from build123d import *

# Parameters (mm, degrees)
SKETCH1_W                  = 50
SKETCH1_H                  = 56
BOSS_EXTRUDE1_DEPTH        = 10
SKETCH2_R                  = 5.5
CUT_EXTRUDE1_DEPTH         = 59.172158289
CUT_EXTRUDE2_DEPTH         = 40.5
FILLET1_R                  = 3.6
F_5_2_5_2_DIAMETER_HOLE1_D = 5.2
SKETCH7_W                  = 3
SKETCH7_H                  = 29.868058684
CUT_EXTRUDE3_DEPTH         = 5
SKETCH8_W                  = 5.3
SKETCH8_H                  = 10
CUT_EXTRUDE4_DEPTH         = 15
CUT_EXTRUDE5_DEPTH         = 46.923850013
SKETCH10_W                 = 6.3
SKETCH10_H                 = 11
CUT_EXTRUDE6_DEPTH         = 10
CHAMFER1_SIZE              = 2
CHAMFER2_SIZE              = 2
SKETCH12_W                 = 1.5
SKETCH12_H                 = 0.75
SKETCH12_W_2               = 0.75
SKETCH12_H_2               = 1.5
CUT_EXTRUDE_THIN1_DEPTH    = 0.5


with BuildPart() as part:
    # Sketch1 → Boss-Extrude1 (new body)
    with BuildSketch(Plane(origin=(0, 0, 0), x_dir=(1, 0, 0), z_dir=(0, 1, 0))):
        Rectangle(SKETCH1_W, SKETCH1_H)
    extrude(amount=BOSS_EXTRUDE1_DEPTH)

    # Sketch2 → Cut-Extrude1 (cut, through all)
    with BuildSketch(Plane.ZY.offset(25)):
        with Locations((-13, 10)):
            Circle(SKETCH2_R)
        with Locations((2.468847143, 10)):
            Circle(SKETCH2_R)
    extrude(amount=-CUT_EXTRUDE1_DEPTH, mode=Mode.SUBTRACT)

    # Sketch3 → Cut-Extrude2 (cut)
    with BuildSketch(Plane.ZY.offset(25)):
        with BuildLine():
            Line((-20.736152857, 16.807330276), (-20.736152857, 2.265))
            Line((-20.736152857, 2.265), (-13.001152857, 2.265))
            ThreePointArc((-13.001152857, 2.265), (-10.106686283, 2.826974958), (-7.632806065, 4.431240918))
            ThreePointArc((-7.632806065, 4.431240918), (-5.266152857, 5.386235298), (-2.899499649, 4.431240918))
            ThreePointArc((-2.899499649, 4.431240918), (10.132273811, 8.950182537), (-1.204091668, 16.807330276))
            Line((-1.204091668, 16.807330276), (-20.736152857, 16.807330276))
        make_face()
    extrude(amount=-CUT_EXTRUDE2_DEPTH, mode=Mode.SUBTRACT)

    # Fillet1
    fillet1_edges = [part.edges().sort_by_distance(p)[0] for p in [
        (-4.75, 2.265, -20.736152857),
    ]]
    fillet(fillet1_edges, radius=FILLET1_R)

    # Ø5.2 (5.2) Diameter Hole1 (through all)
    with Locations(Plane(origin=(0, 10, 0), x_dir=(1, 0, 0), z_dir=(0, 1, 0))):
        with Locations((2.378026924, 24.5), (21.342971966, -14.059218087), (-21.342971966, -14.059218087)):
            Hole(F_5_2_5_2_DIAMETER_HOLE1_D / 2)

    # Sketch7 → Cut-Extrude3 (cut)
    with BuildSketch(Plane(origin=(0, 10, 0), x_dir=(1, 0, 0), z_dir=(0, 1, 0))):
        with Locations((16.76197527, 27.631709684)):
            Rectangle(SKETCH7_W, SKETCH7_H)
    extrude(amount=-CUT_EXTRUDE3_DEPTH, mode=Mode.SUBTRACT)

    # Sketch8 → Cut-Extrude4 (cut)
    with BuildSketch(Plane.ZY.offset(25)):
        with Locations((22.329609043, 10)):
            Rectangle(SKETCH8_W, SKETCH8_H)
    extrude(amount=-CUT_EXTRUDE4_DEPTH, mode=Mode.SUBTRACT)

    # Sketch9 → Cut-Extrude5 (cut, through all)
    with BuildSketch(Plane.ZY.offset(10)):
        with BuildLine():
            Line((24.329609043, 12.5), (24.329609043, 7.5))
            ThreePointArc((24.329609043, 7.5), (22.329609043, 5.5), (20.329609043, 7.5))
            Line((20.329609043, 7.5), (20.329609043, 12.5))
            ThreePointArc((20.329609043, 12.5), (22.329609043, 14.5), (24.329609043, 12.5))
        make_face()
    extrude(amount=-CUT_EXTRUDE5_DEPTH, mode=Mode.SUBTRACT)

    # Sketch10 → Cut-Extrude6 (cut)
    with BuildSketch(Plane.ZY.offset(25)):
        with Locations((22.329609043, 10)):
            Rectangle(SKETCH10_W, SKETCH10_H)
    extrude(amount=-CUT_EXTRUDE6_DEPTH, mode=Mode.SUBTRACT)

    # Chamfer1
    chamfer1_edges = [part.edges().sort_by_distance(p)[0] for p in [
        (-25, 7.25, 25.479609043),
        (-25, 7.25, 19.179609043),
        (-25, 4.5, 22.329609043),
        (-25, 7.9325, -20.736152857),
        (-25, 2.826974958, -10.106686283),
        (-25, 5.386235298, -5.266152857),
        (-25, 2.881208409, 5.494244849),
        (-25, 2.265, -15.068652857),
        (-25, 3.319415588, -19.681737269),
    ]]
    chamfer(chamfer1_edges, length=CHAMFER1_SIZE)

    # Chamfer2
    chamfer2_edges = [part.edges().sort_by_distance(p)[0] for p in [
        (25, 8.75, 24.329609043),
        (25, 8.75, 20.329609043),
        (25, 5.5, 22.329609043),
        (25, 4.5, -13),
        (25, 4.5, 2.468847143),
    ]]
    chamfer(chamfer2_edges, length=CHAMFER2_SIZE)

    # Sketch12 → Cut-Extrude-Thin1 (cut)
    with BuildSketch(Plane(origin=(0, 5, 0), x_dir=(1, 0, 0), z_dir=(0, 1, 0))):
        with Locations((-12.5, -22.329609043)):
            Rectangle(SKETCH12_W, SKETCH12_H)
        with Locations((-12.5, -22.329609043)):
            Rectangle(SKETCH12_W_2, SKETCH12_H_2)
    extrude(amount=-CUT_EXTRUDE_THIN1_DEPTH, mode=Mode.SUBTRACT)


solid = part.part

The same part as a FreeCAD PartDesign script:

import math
import FreeCAD as App
import Part
import Sketcher
from FreeCAD import Vector


def edges_at(feature, points):
    """Names of the edges that pass closest to the given points."""
    edges = feature.Shape.Edges
    near = lambda p: min(range(len(edges)), key=lambda i: edges[i].distToShape(Part.Vertex(*p))[0])
    return sorted({f"Edge{near(p) + 1}" for p in points})

doc = App.newDocument("Part")
body = doc.addObject("PartDesign::Body", "Body")

# Sketch on XZ plane
sketch1 = body.newObject("Sketcher::SketchObject", "Sketch")
sketch1.AttachmentSupport = (doc.getObject("XZ_Plane"), [""])
sketch1.MapMode = "FlatFace"
sketch1.addGeometry([
    Part.LineSegment(Vector(-25, -28, 0), Vector(-25, 28, 0)),
    Part.LineSegment(Vector(-25, 28, 0), Vector(25, 28, 0)),
    Part.LineSegment(Vector(25, 28, 0), Vector(25, -28, 0)),
    Part.LineSegment(Vector(25, -28, 0), Vector(-25, -28, 0)),
], False)
sketch1.addConstraint([
    Sketcher.Constraint("Coincident", 0, 2, 1, 1),
    Sketcher.Constraint("Coincident", 1, 2, 2, 1),
    Sketcher.Constraint("Coincident", 2, 2, 3, 1),
    Sketcher.Constraint("Coincident", 3, 2, 0, 1),
    Sketcher.Constraint("Vertical", 0),
    Sketcher.Constraint("Horizontal", 1),
    Sketcher.Constraint("Vertical", 2),
    Sketcher.Constraint("Horizontal", 3),
    Sketcher.Constraint("Symmetric", 0, 2, 2, 2, -1, 1),
    Sketcher.Constraint("DistanceX", 1, 1, 1, 2, 50.0),
    Sketcher.Constraint("DistanceY", 0, 1, 0, 2, 56.0),
])
pad1 = body.newObject("PartDesign::Pad", "Pad")
pad1.Profile = sketch1
pad1.Length = 10
pad1.Reversed = True

# Sketch on YZ plane
sketch2 = body.newObject("Sketcher::SketchObject", "Sketch001")
sketch2.AttachmentSupport = (doc.getObject("YZ_Plane"), [""])
sketch2.MapMode = "FlatFace"
sketch2.AttachmentOffset = App.Placement(Vector(0, 0, -25), App.Rotation())
sketch2.addGeometry([
    Part.Circle(Vector(10, -13, 0), Vector(0, 0, 1), 6),
    Part.Circle(Vector(10, 2, 0), Vector(0, 0, 1), 6),
], False)
sketch2.addConstraint([
    Sketcher.Constraint("Equal", 0, 1),
    Sketcher.Constraint("Vertical", 0, 3, 1, 3),
    Sketcher.Constraint("Diameter", 0, 11.0),
    Sketcher.Constraint("DistanceX", -1, 1, 0, 3, 10.0),
    Sketcher.Constraint("DistanceY", 0, 3, -1, 1, 13.0),
    Sketcher.Constraint("DistanceY", -1, 1, 1, 3, 2.468847),
])
pocket1 = body.newObject("PartDesign::Pocket", "Pocket")
pocket1.Profile = sketch2
pocket1.Type = "ThroughAll"
pocket1.Reversed = True

# Sketch on YZ plane
sketch3 = body.newObject("Sketcher::SketchObject", "Sketch002")
sketch3.AttachmentSupport = (doc.getObject("YZ_Plane"), [""])
sketch3.MapMode = "FlatFace"
sketch3.AttachmentOffset = App.Placement(Vector(0, 0, -25), App.Rotation())
sketch3.addGeometry([
    Part.LineSegment(Vector(16.8, -20.7, 0), Vector(2.3, -20.7, 0)),  # 0
    Part.LineSegment(Vector(2.3, -20.7, 0), Vector(2.3, -13, 0)),  # 1
    Part.ArcOfCircle(Part.Circle(Vector(10, -13, 0), Vector(0, 0, 1), 7.7), math.radians(136), math.radians(180)),  # 2
    Part.ArcOfCircle(Part.Circle(Vector(2, -5.3, 0), Vector(0, 0, 1), 3.4), math.radians(-44), math.radians(44)),  # 3
    Part.ArcOfCircle(Part.Circle(Vector(10, 2.5, 0), Vector(0, 0, 1), 7.7), math.radians(-28), math.radians(224)),  # 4
    Part.LineSegment(Vector(16.8, -1.2, 0), Vector(16.8, -20.7, 0)),  # 5
], False)
sketch3.addConstraint([
    Sketcher.Constraint("Coincident", 0, 2, 1, 1),
    Sketcher.Constraint("Tangent", 1, 2, 2, 2),
    Sketcher.Constraint("Tangent", 2, 1, 3, 1),
    Sketcher.Constraint("Tangent", 3, 2, 4, 2),
    Sketcher.Constraint("Coincident", 4, 1, 5, 1),
    Sketcher.Constraint("Coincident", 5, 2, 0, 1),
    Sketcher.Constraint("Horizontal", 0),
    Sketcher.Constraint("Vertical", 1),
    Sketcher.Constraint("Vertical", 5),
    Sketcher.Constraint("Equal", 2, 4),
    Sketcher.Constraint("Vertical", 2, 3, 4, 3),
    Sketcher.Constraint("Radius", 3, 3.41),
    Sketcher.Constraint("DistanceX", -1, 1, 2, 3, 10.0),
    Sketcher.Constraint("Radius", 2, 7.735),
    Sketcher.Constraint("DistanceY", 1, 1, 1, 2, 7.735),
    Sketcher.Constraint("DistanceY", 2, 3, 4, 3, 15.47),
    Sketcher.Constraint("DistanceX", 0, 2, 0, 1, 14.54233),
    Sketcher.Constraint("DistanceY", 3, 2, -1, 1, 2.8995),
])
pocket2 = body.newObject("PartDesign::Pocket", "Pocket001")
pocket2.Profile = sketch3
pocket2.Length = 40.5
pocket2.Reversed = True
doc.recompute()

fillet = body.newObject("PartDesign::Fillet", "Fillet")
fillet.Base = (pocket2, edges_at(pocket2, [(-4.75, 2.265, -20.736)]))
fillet.Radius = 3.6

# Sketch on XZ plane
sketch4 = body.newObject("Sketcher::SketchObject", "Sketch003")
sketch4.AttachmentSupport = (doc.getObject("XZ_Plane"), [""])
sketch4.MapMode = "FlatFace"
sketch4.AttachmentOffset = App.Placement(Vector(0, 0, -10), App.Rotation())
sketch4.addGeometry([
    Part.Circle(Vector(2.4, -24.5, 0), Vector(0, 0, 1), 2.6),
    Part.Circle(Vector(21.3, 14.1, 0), Vector(0, 0, 1), 2.6),
    Part.Circle(Vector(-21.3, 14.1, 0), Vector(0, 0, 1), 2.6),
], False)
sketch4.addConstraint([
    Sketcher.Constraint("Equal", 0, 1),
    Sketcher.Constraint("Equal", 1, 2),
    Sketcher.Constraint("Symmetric", 1, 3, 2, 3, -2),
    Sketcher.Constraint("Diameter", 0, 5.2),
    Sketcher.Constraint("DistanceY", 0, 3, -1, 1, 24.5),
    Sketcher.Constraint("DistanceX", 2, 3, 0, 3, 23.720999),
    Sketcher.Constraint("DistanceX", -1, 1, 1, 3, 21.342972),
    Sketcher.Constraint("DistanceY", -1, 1, 1, 3, 14.059218),
])
doc.recompute()
hole = body.newObject("PartDesign::Hole", "Hole")
hole.Profile = sketch4
hole.ThreadType = "None"
hole.Diameter = 5.2
hole.DepthType = "ThroughAll"
hole.Reversed = True

# Sketch on XZ plane
sketch5 = body.newObject("Sketcher::SketchObject", "Sketch004")
sketch5.AttachmentSupport = (doc.getObject("XZ_Plane"), [""])
sketch5.MapMode = "FlatFace"
sketch5.AttachmentOffset = App.Placement(Vector(0, 0, -10), App.Rotation())
sketch5.addGeometry([
    Part.LineSegment(Vector(15.3, -42.6, 0), Vector(15.3, -12.7, 0)),
    Part.LineSegment(Vector(15.3, -12.7, 0), Vector(18.3, -12.7, 0)),
    Part.LineSegment(Vector(18.3, -12.7, 0), Vector(18.3, -42.6, 0)),
    Part.LineSegment(Vector(18.3, -42.6, 0), Vector(15.3, -42.6, 0)),
], False)
sketch5.addConstraint([
    Sketcher.Constraint("Coincident", 0, 2, 1, 1),
    Sketcher.Constraint("Coincident", 1, 2, 2, 1),
    Sketcher.Constraint("Coincident", 2, 2, 3, 1),
    Sketcher.Constraint("Coincident", 3, 2, 0, 1),
    Sketcher.Constraint("Vertical", 0),
    Sketcher.Constraint("Horizontal", 1),
    Sketcher.Constraint("Vertical", 2),
    Sketcher.Constraint("Horizontal", 3),
    Sketcher.Constraint("DistanceX", 1, 1, 1, 2, 3.0),
    Sketcher.Constraint("DistanceY", 0, 1, 0, 2, 29.868059),
    Sketcher.Constraint("DistanceY", 0, 2, -1, 1, 12.69768),
    Sketcher.Constraint("DistanceX", -1, 1, 0, 2, 15.261975),
])
pocket3 = body.newObject("PartDesign::Pocket", "Pocket002")
pocket3.Profile = sketch5
pocket3.Length = 5
pocket3.Reversed = True

# Sketch on YZ plane
sketch6 = body.newObject("Sketcher::SketchObject", "Sketch005")
sketch6.AttachmentSupport = (doc.getObject("YZ_Plane"), [""])
sketch6.MapMode = "FlatFace"
sketch6.AttachmentOffset = App.Placement(Vector(0, 0, -25), App.Rotation())
sketch6.addGeometry([
    Part.LineSegment(Vector(15, 20, 0), Vector(5, 20, 0)),
    Part.LineSegment(Vector(5, 20, 0), Vector(5, 25, 0)),
    Part.LineSegment(Vector(5, 25, 0), Vector(15, 25, 0)),
    Part.LineSegment(Vector(15, 25, 0), Vector(15, 20, 0)),
], False)
sketch6.addConstraint([
    Sketcher.Constraint("Coincident", 0, 2, 1, 1),
    Sketcher.Constraint("Coincident", 1, 2, 2, 1),
    Sketcher.Constraint("Coincident", 2, 2, 3, 1),
    Sketcher.Constraint("Coincident", 3, 2, 0, 1),
    Sketcher.Constraint("Horizontal", 0),
    Sketcher.Constraint("Vertical", 1),
    Sketcher.Constraint("Horizontal", 2),
    Sketcher.Constraint("Vertical", 3),
    Sketcher.Constraint("DistanceX", 0, 2, 0, 1, 10.0),
    Sketcher.Constraint("DistanceY", 1, 1, 1, 2, 5.3),
    Sketcher.Constraint("DistanceX", -1, 1, 0, 2, 5.0),
    Sketcher.Constraint("DistanceY", -1, 1, 0, 2, 19.679609),
])
pocket4 = body.newObject("PartDesign::Pocket", "Pocket003")
pocket4.Profile = sketch6
pocket4.Length = 15
pocket4.Reversed = True

# Sketch on YZ plane
sketch7 = body.newObject("Sketcher::SketchObject", "Sketch006")
sketch7.AttachmentSupport = (doc.getObject("YZ_Plane"), [""])
sketch7.MapMode = "FlatFace"
sketch7.AttachmentOffset = App.Placement(Vector(0, 0, -10), App.Rotation())
sketch7.addGeometry([
    Part.LineSegment(Vector(7.5, 24.3, 0), Vector(12.5, 24.3, 0)),
    Part.ArcOfCircle(Part.Circle(Vector(12.5, 22.3, 0), Vector(0, 0, 1), 2), math.radians(-90), math.radians(90)),
    Part.LineSegment(Vector(12.5, 20.3, 0), Vector(7.5, 20.3, 0)),
    Part.ArcOfCircle(Part.Circle(Vector(7.5, 22.3, 0), Vector(0, 0, 1), 2), math.radians(90), math.radians(270)),
], False)
sketch7.addConstraint([
    Sketcher.Constraint("Tangent", 0, 2, 1, 2),
    Sketcher.Constraint("Tangent", 1, 1, 2, 1),
    Sketcher.Constraint("Tangent", 2, 2, 3, 2),
    Sketcher.Constraint("Tangent", 3, 1, 0, 1),
    Sketcher.Constraint("Horizontal", 0),
    Sketcher.Constraint("Horizontal", 2),
    Sketcher.Constraint("Radius", 1, 2.0),
    Sketcher.Constraint("DistanceX", 0, 1, 0, 2, 5.0),
    Sketcher.Constraint("DistanceX", -1, 1, 1, 3, 12.5),
    Sketcher.Constraint("DistanceY", -1, 1, 1, 3, 22.329609),
])
pocket5 = body.newObject("PartDesign::Pocket", "Pocket004")
pocket5.Profile = sketch7
pocket5.Type = "ThroughAll"
pocket5.Reversed = True

# Sketch on YZ plane
sketch8 = body.newObject("Sketcher::SketchObject", "Sketch007")
sketch8.AttachmentSupport = (doc.getObject("YZ_Plane"), [""])
sketch8.MapMode = "FlatFace"
sketch8.AttachmentOffset = App.Placement(Vector(0, 0, -25), App.Rotation())
sketch8.addGeometry([
    Part.LineSegment(Vector(16, 19, 0), Vector(4, 19, 0)),
    Part.LineSegment(Vector(4, 19, 0), Vector(4, 25, 0)),
    Part.LineSegment(Vector(4, 25, 0), Vector(16, 25, 0)),
    Part.LineSegment(Vector(16, 25, 0), Vector(16, 19, 0)),
], False)
sketch8.addConstraint([
    Sketcher.Constraint("Coincident", 0, 2, 1, 1),
    Sketcher.Constraint("Coincident", 1, 2, 2, 1),
    Sketcher.Constraint("Coincident", 2, 2, 3, 1),
    Sketcher.Constraint("Coincident", 3, 2, 0, 1),
    Sketcher.Constraint("Horizontal", 0),
    Sketcher.Constraint("Vertical", 1),
    Sketcher.Constraint("Horizontal", 2),
    Sketcher.Constraint("Vertical", 3),
    Sketcher.Constraint("DistanceX", 0, 2, 0, 1, 11.0),
    Sketcher.Constraint("DistanceY", 1, 1, 1, 2, 6.3),
    Sketcher.Constraint("DistanceX", -1, 1, 0, 2, 4.5),
    Sketcher.Constraint("DistanceY", -1, 1, 0, 2, 19.179609),
])
pocket6 = body.newObject("PartDesign::Pocket", "Pocket005")
pocket6.Profile = sketch8
pocket6.Length = 10
pocket6.Reversed = True
doc.recompute()

chamfer = body.newObject("PartDesign::Chamfer", "Chamfer")
chamfer.Base = (pocket6, edges_at(pocket6, [
    (-25, 7.25, 25.48),
    (-25, 7.25, 19.18),
    (-25, 4.5, 22.33),
    (-25, 7.933, -20.736),
    (-25, 2.827, -10.107),
    (-25, 5.386, -5.266),
    (-25, 2.881, 5.494),
    (-25, 2.265, -15.069),
    (-25, 3.319, -19.682),
]))
chamfer.Size = 2
doc.recompute()

chamfer2 = body.newObject("PartDesign::Chamfer", "Chamfer001")
chamfer2.Base = (chamfer, edges_at(chamfer, [
    (25, 8.75, 24.33),
    (25, 8.75, 20.33),
    (25, 5.5, 22.33),
    (25, 4.5, -13),
    (25, 4.5, 2.469),
]))
chamfer2.Size = 2

# Sketch on XZ plane
sketch9 = body.newObject("Sketcher::SketchObject", "Sketch008")
sketch9.AttachmentSupport = (doc.getObject("XZ_Plane"), [""])
sketch9.MapMode = "FlatFace"
sketch9.AttachmentOffset = App.Placement(Vector(0, 0, -5), App.Rotation())
sketch9.addGeometry([
    Part.LineSegment(Vector(-13.25, 21.95, 0), Vector(-13.25, 22.7, 0)),  # 0
    Part.LineSegment(Vector(-13.25, 22.7, 0), Vector(-12.88, 22.7, 0)),  # 1
    Part.LineSegment(Vector(-12.88, 22.7, 0), Vector(-12.88, 23.08, 0)),  # 2
    Part.LineSegment(Vector(-12.88, 23.08, 0), Vector(-12.12, 23.08, 0)),  # 3
    Part.LineSegment(Vector(-12.12, 23.08, 0), Vector(-12.12, 22.7, 0)),  # 4
    Part.LineSegment(Vector(-12.12, 22.7, 0), Vector(-11.75, 22.7, 0)),  # 5
    Part.LineSegment(Vector(-11.75, 22.7, 0), Vector(-11.75, 21.95, 0)),  # 6
    Part.LineSegment(Vector(-11.75, 21.95, 0), Vector(-12.12, 21.95, 0)),  # 7
    Part.LineSegment(Vector(-12.12, 21.95, 0), Vector(-12.12, 21.58, 0)),  # 8
    Part.LineSegment(Vector(-12.12, 21.58, 0), Vector(-12.88, 21.58, 0)),  # 9
    Part.LineSegment(Vector(-12.88, 21.58, 0), Vector(-12.88, 21.95, 0)),  # 10
    Part.LineSegment(Vector(-12.88, 21.95, 0), Vector(-13.25, 21.95, 0)),  # 11
], False)
sketch9.addConstraint([
    Sketcher.Constraint("Coincident", 0, 2, 1, 1),
    Sketcher.Constraint("Coincident", 1, 2, 2, 1),
    Sketcher.Constraint("Coincident", 2, 2, 3, 1),
    Sketcher.Constraint("Coincident", 3, 2, 4, 1),
    Sketcher.Constraint("Coincident", 4, 2, 5, 1),
    Sketcher.Constraint("Coincident", 5, 2, 6, 1),
    Sketcher.Constraint("Coincident", 6, 2, 7, 1),
    Sketcher.Constraint("Coincident", 7, 2, 8, 1),
    Sketcher.Constraint("Coincident", 8, 2, 9, 1),
    Sketcher.Constraint("Coincident", 9, 2, 10, 1),
    Sketcher.Constraint("Coincident", 10, 2, 11, 1),
    Sketcher.Constraint("Coincident", 11, 2, 0, 1),
    Sketcher.Constraint("Vertical", 0),
    Sketcher.Constraint("Horizontal", 1),
    Sketcher.Constraint("Vertical", 2),
    Sketcher.Constraint("Horizontal", 3),
    Sketcher.Constraint("Vertical", 4),
    Sketcher.Constraint("Horizontal", 5),
    Sketcher.Constraint("Vertical", 6),
    Sketcher.Constraint("Horizontal", 7),
    Sketcher.Constraint("Vertical", 8),
    Sketcher.Constraint("Horizontal", 9),
    Sketcher.Constraint("Vertical", 10),
    Sketcher.Constraint("Horizontal", 11),
    Sketcher.Constraint("Horizontal", 1, 2, 4, 2),
    Sketcher.Constraint("Horizontal", 7, 2, 10, 2),
    Sketcher.Constraint("Vertical", 4, 2, 7, 2),
    Sketcher.Constraint("Vertical", 2, 2, 9, 2),
    Sketcher.Constraint("Equal", 1, 5),
    Sketcher.Constraint("Equal", 9, 0),
    Sketcher.Constraint("Equal", 11, 2),
    Sketcher.Constraint("Equal", 4, 8),
    Sketcher.Constraint("DistanceX", 3, 1, 3, 2, 0.75),
    Sketcher.Constraint("DistanceX", 0, 2, 5, 2, 1.5),
    Sketcher.Constraint("DistanceX", 0, 2, -1, 1, 13.25),
    Sketcher.Constraint("DistanceY", -1, 1, 0, 2, 22.704609),
])
pocket7 = body.newObject("PartDesign::Pocket", "Pocket006")
pocket7.Profile = sketch9
pocket7.Length = 0.5
pocket7.Reversed = True

doc.recompute()
